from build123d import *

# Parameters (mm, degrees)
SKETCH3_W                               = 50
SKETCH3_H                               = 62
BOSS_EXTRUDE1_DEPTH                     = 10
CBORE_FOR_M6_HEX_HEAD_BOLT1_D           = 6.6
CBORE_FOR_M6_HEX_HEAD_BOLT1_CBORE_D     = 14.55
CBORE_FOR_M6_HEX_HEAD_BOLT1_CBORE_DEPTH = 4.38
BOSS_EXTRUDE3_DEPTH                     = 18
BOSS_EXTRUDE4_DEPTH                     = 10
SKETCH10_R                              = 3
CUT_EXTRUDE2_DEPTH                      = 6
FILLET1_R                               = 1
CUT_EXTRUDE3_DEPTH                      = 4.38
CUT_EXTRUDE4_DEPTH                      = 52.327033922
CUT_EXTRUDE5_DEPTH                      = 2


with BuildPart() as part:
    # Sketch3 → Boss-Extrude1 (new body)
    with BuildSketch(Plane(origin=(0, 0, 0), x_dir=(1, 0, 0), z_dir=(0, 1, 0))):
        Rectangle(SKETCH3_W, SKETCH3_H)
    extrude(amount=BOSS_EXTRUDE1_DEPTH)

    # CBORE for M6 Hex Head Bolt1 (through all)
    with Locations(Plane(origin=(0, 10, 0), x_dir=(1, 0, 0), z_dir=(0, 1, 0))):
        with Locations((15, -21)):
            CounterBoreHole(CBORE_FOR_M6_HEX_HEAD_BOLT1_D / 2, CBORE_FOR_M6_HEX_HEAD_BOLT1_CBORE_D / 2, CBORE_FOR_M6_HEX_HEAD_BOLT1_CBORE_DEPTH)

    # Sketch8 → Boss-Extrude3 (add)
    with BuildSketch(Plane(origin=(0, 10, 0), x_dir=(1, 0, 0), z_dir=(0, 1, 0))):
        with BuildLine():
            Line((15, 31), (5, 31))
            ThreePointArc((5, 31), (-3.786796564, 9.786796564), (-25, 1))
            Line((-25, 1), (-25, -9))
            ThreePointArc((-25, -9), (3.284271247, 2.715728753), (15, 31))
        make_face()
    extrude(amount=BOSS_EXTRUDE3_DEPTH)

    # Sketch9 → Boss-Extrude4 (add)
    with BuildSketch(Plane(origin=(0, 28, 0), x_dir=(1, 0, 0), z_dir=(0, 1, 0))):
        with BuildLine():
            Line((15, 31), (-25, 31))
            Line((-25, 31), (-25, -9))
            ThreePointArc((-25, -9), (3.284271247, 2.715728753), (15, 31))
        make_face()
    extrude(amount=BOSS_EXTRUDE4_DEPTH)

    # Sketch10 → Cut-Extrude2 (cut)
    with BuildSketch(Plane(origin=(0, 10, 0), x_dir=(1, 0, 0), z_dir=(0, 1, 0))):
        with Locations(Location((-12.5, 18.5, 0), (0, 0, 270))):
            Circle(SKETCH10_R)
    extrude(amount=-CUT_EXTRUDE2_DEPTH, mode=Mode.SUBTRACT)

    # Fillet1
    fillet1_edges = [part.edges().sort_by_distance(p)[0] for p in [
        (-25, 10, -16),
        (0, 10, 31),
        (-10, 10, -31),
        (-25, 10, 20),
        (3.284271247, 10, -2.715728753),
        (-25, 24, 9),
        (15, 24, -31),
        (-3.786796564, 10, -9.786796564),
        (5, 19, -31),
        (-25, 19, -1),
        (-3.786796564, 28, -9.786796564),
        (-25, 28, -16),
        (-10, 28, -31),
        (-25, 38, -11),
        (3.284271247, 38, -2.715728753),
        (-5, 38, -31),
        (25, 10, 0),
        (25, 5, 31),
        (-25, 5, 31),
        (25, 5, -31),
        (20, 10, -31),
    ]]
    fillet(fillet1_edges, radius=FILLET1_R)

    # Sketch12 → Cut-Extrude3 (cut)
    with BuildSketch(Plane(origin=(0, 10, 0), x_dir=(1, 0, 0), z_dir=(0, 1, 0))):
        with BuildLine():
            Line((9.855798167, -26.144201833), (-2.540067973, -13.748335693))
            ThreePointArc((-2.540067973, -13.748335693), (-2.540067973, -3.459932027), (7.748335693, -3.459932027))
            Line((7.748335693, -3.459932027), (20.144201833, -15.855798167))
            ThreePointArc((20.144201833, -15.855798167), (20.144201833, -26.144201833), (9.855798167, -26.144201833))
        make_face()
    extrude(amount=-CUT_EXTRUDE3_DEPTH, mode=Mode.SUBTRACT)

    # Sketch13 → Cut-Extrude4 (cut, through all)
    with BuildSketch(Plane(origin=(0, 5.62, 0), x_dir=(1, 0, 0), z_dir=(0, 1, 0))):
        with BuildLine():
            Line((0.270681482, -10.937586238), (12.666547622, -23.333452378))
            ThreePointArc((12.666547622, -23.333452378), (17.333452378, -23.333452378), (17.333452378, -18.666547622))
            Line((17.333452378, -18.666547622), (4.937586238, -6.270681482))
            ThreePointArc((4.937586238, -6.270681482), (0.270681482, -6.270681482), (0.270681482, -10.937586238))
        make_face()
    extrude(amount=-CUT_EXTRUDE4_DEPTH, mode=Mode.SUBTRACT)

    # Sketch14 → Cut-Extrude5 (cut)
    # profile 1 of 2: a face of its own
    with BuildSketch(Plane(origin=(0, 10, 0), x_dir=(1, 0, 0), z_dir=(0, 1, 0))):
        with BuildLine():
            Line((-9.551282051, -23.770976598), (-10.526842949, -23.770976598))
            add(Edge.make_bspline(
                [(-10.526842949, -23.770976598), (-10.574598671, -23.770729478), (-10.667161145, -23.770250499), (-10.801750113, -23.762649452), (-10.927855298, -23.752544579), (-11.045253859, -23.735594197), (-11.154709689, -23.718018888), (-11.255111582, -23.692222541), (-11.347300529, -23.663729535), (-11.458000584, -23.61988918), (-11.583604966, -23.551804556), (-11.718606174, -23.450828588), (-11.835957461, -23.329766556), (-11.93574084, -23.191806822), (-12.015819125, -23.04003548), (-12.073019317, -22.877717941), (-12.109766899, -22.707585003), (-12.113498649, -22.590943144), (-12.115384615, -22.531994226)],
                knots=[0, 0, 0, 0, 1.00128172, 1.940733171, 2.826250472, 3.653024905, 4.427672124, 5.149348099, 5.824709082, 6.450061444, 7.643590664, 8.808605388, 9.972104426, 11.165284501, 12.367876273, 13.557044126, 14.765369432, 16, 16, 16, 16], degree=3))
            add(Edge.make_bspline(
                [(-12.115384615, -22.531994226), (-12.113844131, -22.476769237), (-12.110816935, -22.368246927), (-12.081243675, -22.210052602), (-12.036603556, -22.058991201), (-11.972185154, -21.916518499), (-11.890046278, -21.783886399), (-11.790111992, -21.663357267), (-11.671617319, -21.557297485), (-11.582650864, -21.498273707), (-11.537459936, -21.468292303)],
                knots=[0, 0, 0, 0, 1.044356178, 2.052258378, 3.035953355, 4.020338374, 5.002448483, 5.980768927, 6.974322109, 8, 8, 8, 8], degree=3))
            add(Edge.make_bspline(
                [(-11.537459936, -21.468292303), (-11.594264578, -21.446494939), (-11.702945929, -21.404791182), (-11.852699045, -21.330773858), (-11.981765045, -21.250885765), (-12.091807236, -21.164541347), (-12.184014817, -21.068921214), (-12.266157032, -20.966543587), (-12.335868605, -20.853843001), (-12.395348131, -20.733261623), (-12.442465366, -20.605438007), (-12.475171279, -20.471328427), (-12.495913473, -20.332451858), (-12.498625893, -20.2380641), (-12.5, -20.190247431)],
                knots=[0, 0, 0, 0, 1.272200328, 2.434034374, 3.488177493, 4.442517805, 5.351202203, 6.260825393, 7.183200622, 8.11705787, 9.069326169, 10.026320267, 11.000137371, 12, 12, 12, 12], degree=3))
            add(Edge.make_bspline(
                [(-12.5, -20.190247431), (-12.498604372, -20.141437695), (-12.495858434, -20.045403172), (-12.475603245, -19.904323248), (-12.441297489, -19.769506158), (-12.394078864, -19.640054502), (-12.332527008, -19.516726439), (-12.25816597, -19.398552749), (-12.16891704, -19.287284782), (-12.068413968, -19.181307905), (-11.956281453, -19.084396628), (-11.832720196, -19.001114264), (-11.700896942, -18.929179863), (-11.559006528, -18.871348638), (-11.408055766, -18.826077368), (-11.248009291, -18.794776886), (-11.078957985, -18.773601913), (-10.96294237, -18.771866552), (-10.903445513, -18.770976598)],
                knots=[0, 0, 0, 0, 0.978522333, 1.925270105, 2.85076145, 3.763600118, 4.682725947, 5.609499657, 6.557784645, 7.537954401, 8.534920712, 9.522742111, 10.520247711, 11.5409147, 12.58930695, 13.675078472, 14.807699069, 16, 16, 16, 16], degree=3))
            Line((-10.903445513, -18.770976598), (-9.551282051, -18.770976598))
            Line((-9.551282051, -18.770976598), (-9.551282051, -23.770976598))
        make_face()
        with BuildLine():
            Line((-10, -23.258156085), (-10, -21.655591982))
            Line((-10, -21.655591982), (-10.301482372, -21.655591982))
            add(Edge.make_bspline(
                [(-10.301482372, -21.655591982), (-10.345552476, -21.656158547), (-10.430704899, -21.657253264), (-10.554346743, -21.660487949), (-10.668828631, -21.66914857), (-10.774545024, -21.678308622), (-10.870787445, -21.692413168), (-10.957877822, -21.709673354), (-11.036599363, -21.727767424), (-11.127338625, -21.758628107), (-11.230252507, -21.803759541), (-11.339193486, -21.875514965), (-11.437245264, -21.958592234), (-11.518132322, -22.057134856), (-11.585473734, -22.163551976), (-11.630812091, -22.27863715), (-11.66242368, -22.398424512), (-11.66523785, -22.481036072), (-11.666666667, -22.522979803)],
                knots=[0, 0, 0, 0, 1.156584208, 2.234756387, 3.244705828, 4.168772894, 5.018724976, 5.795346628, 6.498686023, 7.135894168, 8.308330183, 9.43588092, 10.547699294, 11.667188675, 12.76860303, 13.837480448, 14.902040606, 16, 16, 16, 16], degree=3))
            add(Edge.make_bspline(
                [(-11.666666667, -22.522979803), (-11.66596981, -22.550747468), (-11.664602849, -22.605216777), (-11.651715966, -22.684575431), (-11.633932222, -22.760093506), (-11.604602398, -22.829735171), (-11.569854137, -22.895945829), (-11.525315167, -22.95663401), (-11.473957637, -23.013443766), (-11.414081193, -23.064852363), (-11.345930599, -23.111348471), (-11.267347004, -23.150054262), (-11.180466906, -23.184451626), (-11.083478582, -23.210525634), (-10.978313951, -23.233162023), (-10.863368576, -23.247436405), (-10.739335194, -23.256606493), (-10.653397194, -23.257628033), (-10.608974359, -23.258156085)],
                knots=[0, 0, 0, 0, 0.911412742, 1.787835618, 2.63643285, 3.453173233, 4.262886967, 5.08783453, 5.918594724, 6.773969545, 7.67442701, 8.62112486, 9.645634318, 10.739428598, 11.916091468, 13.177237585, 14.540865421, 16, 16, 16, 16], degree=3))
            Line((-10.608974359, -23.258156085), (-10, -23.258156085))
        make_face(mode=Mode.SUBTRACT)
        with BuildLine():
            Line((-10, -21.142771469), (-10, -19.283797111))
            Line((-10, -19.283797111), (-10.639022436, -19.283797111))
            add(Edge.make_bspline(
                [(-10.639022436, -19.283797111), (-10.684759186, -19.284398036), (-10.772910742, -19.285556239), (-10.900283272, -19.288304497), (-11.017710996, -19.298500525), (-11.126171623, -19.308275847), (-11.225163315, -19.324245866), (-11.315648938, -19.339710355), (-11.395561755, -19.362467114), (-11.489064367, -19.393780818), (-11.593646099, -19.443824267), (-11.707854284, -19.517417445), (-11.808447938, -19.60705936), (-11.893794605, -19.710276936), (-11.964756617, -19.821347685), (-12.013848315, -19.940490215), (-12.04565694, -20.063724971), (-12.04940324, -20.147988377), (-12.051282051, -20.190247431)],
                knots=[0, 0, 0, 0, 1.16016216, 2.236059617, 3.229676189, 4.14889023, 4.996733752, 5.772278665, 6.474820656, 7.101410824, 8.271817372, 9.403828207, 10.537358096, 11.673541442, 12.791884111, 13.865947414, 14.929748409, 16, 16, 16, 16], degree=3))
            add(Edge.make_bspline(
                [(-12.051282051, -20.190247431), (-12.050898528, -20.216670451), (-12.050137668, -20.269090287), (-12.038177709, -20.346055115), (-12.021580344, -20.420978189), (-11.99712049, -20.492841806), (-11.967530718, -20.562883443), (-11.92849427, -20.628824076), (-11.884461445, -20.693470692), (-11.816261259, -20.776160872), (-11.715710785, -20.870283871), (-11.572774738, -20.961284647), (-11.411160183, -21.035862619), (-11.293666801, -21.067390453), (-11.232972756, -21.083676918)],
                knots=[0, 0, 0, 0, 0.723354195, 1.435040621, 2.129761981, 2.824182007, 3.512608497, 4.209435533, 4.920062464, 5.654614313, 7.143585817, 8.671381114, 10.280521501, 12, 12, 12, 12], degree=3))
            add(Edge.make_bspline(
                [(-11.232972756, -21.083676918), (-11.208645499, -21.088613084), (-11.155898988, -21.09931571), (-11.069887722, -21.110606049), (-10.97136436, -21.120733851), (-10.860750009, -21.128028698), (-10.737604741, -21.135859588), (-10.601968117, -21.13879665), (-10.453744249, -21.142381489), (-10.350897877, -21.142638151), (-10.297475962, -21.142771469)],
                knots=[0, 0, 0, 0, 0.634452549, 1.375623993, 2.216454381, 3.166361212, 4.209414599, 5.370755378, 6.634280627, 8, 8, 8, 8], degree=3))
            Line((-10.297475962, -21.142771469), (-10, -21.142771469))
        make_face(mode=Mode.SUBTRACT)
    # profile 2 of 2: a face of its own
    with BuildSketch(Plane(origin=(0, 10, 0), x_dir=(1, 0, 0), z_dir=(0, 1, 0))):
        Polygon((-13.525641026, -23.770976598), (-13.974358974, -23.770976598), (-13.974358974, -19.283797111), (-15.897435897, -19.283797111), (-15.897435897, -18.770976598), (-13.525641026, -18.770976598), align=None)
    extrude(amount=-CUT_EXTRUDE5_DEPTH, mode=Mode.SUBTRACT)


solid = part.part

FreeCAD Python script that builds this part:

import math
import FreeCAD as App
import Part
import Sketcher
Q = App.Units.Quantity


def edges_at(feature, points):
    """Names of the edges that pass closest to the given points."""
    edges = feature.Shape.Edges
    near = lambda p: min(range(len(edges)), key=lambda i: edges[i].distToShape(Part.Vertex(*p))[0])
    return sorted({f"Edge{near(p) + 1}" for p in points})

doc = App.newDocument("Part")
body = doc.addObject("PartDesign::Body", "Body")

# Sketch on XZ plane
sketch1 = doc.addObject("Sketcher::SketchObject", "Sketch")
body.addObject(sketch1)
sketch1.AttachmentSupport = (doc.XZ_Plane, [""])
sketch1.MapMode = "FlatFace"
sketch1.addGeometry([
    Part.LineSegment(App.Vector(-25, -31, 0), App.Vector(-25, 31, 0)),
    Part.LineSegment(App.Vector(-25, 31, 0), App.Vector(25, 31, 0)),
    Part.LineSegment(App.Vector(25, 31, 0), App.Vector(25, -31, 0)),
    Part.LineSegment(App.Vector(25, -31, 0), App.Vector(-25, -31, 0)),
], False)
sketch1.addConstraint([
    Sketcher.Constraint("Coincident", 0, 2, 1, 1),
    Sketcher.Constraint("Coincident", 1, 2, 2, 1),
    Sketcher.Constraint("Coincident", 2, 2, 3, 1),
    Sketcher.Constraint("Coincident", 3, 2, 0, 1),
    Sketcher.Constraint("Vertical", 0),
    Sketcher.Constraint("Horizontal", 1),
    Sketcher.Constraint("Vertical", 2),
    Sketcher.Constraint("Horizontal", 3),
    Sketcher.Constraint("Symmetric", 0, 2, 2, 2, -1, 1),
    Sketcher.Constraint("DistanceX", 1, 1, 1, 2, 50.0),
    Sketcher.Constraint("DistanceY", 0, 1, 0, 2, 62.0),
])
pad1 = doc.addObject("PartDesign::Pad", "Pad")
body.addObject(pad1)
pad1.Profile = sketch1
pad1.Length = 10
pad1.Reversed = True

# Sketch on XZ plane
sketch2 = doc.addObject("Sketcher::SketchObject", "Sketch001")
body.addObject(sketch2)
sketch2.AttachmentSupport = (doc.XZ_Plane, [""])
sketch2.MapMode = "FlatFace"
sketch2.AttachmentOffset = App.Placement(App.Vector(0, 0, -10), App.Rotation())
sketch2.addGeometry(Part.Circle(App.Vector(15, 21, 0), App.Vector(0, 0, 1), 3.3), False)
sketch2.addConstraint([
    Sketcher.Constraint("Diameter", 0, 6.6),
    Sketcher.Constraint("DistanceX", -1, 1, 0, 3, 15.0),
    Sketcher.Constraint("DistanceY", -1, 1, 0, 3, 21.0),
])
doc.recompute()
hole = doc.addObject("PartDesign::Hole", "Hole")
body.addObject(hole)
hole.Profile = sketch2
hole.ThreadType = "None"
hole.Diameter = 6.6
hole.DepthType = "ThroughAll"
hole.HoleCutType = "Counterbore"
hole.HoleCutDiameter = 14.55
hole.HoleCutDepth = 4.38
hole.Reversed = True

# Sketch on XZ plane
sketch3 = doc.addObject("Sketcher::SketchObject", "Sketch002")
body.addObject(sketch3)
sketch3.AttachmentSupport = (doc.XZ_Plane, [""])
sketch3.MapMode = "FlatFace"
sketch3.AttachmentOffset = App.Placement(App.Vector(0, 0, -10), App.Rotation())
sketch3.addGeometry([
    Part.LineSegment(App.Vector(15, -31, 0), App.Vector(5, -31, 0)),
    Part.ArcOfCircle(Part.Circle(App.Vector(-25, -31, 0), App.Vector(0, 0, 1), 30), math.radians(0), math.radians(90)),
    Part.LineSegment(App.Vector(-25, -1, 0), App.Vector(-25, 9, 0)),
    Part.ArcOfCircle(Part.Circle(App.Vector(-25, -31, 0), App.Vector(0, 0, 1), 40), math.radians(0), math.radians(90)),
], False)
sketch3.addConstraint([
    Sketcher.Constraint("Coincident", 0, 2, 1, 1),
    Sketcher.Constraint("Coincident", 1, 2, 2, 1),
    Sketcher.Constraint("Coincident", 2, 2, 3, 2),
    Sketcher.Constraint("Coincident", 3, 1, 0, 1),
    Sketcher.Constraint("Horizontal", 0),
    Sketcher.Constraint("Vertical", 2),
    Sketcher.Constraint("Coincident", 3, 3, 1, 3),
    Sketcher.Constraint("Horizontal", 3, 3, 0, 2),
    Sketcher.Constraint("Vertical", 3, 3, 1, 2),
    Sketcher.Constraint("Radius", 1, 30.0),
    Sketcher.Constraint("Radius", 3, 40.0),
    Sketcher.Constraint("DistanceX", 1, 3, -1, 1, 25.0),
    Sketcher.Constraint("DistanceY", 1, 3, -1, 1, 31.0),
])
pad2 = doc.addObject("PartDesign::Pad", "Pad001")
body.addObject(pad2)
pad2.Profile = sketch3
pad2.Length = 18
pad2.Reversed = True

# Sketch on XZ plane
sketch4 = doc.addObject("Sketcher::SketchObject", "Sketch003")
body.addObject(sketch4)
sketch4.AttachmentSupport = (doc.XZ_Plane, [""])
sketch4.MapMode = "FlatFace"
sketch4.AttachmentOffset = App.Placement(App.Vector(0, 0, -28), App.Rotation())
sketch4.addGeometry([
    Part.LineSegment(App.Vector(15, -31, 0), App.Vector(-25, -31, 0)),
    Part.LineSegment(App.Vector(-25, -31, 0), App.Vector(-25, 9, 0)),
    Part.ArcOfCircle(Part.Circle(App.Vector(-25, -31, 0), App.Vector(0, 0, 1), 40), math.radians(0), math.radians(90)),
], False)
sketch4.addConstraint([
    Sketcher.Constraint("Coincident", 0, 2, 1, 1),
    Sketcher.Constraint("Coincident", 1, 2, 2, 2),
    Sketcher.Constraint("Coincident", 2, 1, 0, 1),
    Sketcher.Constraint("Horizontal", 0),
    Sketcher.Constraint("Vertical", 1),
    Sketcher.Constraint("Coincident", 0, 2, 2, 3),
    Sketcher.Constraint("Radius", 2, 40.0),
    Sketcher.Constraint("DistanceX", 2, 3, -1, 1, 25.0),
    Sketcher.Constraint("DistanceY", 2, 3, -1, 1, 31.0),
])
pad3 = doc.addObject("PartDesign::Pad", "Pad002")
body.addObject(pad3)
pad3.Profile = sketch4
pad3.Length = 10
pad3.Reversed = True

# Sketch on XZ plane
sketch5 = doc.addObject("Sketcher::SketchObject", "Sketch004")
body.addObject(sketch5)
sketch5.AttachmentSupport = (doc.XZ_Plane, [""])
sketch5.MapMode = "FlatFace"
sketch5.AttachmentOffset = App.Placement(App.Vector(0, 0, -10), App.Rotation())
sketch5.addGeometry(Part.Circle(App.Vector(-12.5, -18.5, 0), App.Vector(0, 0, 1), 3), False)
sketch5.addConstraint([
    Sketcher.Constraint("Diameter", 0, 6.0),
    Sketcher.Constraint("DistanceX", 0, 3, -1, 1, 12.5),
    Sketcher.Constraint("DistanceY", 0, 3, -1, 1, 18.5),
])
pocket1 = doc.addObject("PartDesign::Pocket", "Pocket")
body.addObject(pocket1)
pocket1.Profile = sketch5
pocket1.Length = 6
pocket1.Reversed = True
doc.recompute()

fillet = doc.addObject("PartDesign::Fillet", "Fillet")
body.addObject(fillet)
fillet.Base = (pocket1, edges_at(pocket1, [
    (-25, 10, -16),
    (0, 10, 31),
    (-10, 10, -31),
    (-25, 10, 20),
    (3.284, 10, -2.716),
    (-25, 24, 9),
    (15, 24, -31),
    (-3.787, 10, -9.787),
    (5, 19, -31),
    (-25, 19, -1),
    (-3.787, 28, -9.787),
    (-25, 28, -16),
    (-10, 28, -31),
    (-25, 38, -11),
    (3.284, 38, -2.716),
    (-5, 38, -31),
    (25, 10, 0),
    (25, 5, 31),
    (-25, 5, 31),
    (25, 5, -31),
    (20, 10, -31),
]))
fillet.Radius = 1

# Sketch on XZ plane
sketch6 = doc.addObject("Sketcher::SketchObject", "Sketch005")
body.addObject(sketch6)
sketch6.AttachmentSupport = (doc.XZ_Plane, [""])
sketch6.MapMode = "FlatFace"
sketch6.AttachmentOffset = App.Placement(App.Vector(0, 0, -10), App.Rotation())
sketch6.addGeometry([
    Part.LineSegment(App.Vector(-3, 14, 0), App.Vector(10, 26, 0)),
    Part.ArcOfCircle(Part.Circle(App.Vector(15, 21, 0), App.Vector(0, 0, 1), 7), math.radians(-45), math.radians(135)),
    Part.LineSegment(App.Vector(20, 16, 0), App.Vector(8, 3, 0)),
    Part.ArcOfCircle(Part.Circle(App.Vector(3, 9, 0), App.Vector(0, 0, 1), 7), math.radians(135), math.radians(315)),
], False)
sketch6.addConstraint([
    Sketcher.Constraint("Tangent", 0, 2, 1, 2),
    Sketcher.Constraint("Tangent", 1, 1, 2, 1),
    Sketcher.Constraint("Tangent", 2, 2, 3, 2),
    Sketcher.Constraint("Tangent", 3, 1, 0, 1),
    Sketcher.Constraint("Equal", 1, 3),
    Sketcher.Constraint("Angle", 0, Q("45 deg")),
    Sketcher.Constraint("DistanceX", -1, 1, 1, 3, 15.0),
    Sketcher.Constraint("DistanceY", -1, 1, 1, 3, 21.0),
    Sketcher.Constraint("Radius", 1, 7.275),
    Sketcher.Constraint("DistanceY", 2, 2, 0, 2, 22.68427),
])
pocket2 = doc.addObject("PartDesign::Pocket", "Pocket001")
body.addObject(pocket2)
pocket2.Profile = sketch6
pocket2.Length = 4.38
pocket2.Reversed = True

# Sketch on XZ plane
sketch7 = doc.addObject("Sketcher::SketchObject", "Sketch006")
body.addObject(sketch7)
sketch7.AttachmentSupport = (doc.XZ_Plane, [""])
sketch7.MapMode = "FlatFace"
sketch7.AttachmentOffset = App.Placement(App.Vector(0, 0, -5.62), App.Rotation())
sketch7.addGeometry([
    Part.LineSegment(App.Vector(0.3, 10.9, 0), App.Vector(12.7, 23.3, 0)),
    Part.ArcOfCircle(Part.Circle(App.Vector(15, 21, 0), App.Vector(0, 0, 1), 3.3), math.radians(-45), math.radians(135)),
    Part.LineSegment(App.Vector(17.3, 18.7, 0), App.Vector(4.9, 6.3, 0)),
    Part.ArcOfCircle(Part.Circle(App.Vector(2.6, 8.6, 0), App.Vector(0, 0, 1), 3.3), math.radians(135), math.radians(315)),
], False)
sketch7.addConstraint([
    Sketcher.Constraint("Tangent", 0, 2, 1, 2),
    Sketcher.Constraint("Tangent", 1, 1, 2, 1),
    Sketcher.Constraint("Tangent", 2, 2, 3, 2),
    Sketcher.Constraint("Tangent", 3, 1, 0, 1),
    Sketcher.Constraint("Equal", 1, 3),
    Sketcher.Constraint("Radius", 1, 3.3),
    Sketcher.Constraint("Angle", 0, Q("45 deg")),
    Sketcher.Constraint("DistanceX", -1, 1, 1, 3, 15.0),
    Sketcher.Constraint("DistanceY", -1, 1, 1, 3, 21.0),
    Sketcher.Constraint("DistanceY", -1, 1, 2, 2, 6.270681),
])
pocket3 = doc.addObject("PartDesign::Pocket", "Pocket002")
body.addObject(pocket3)
pocket3.Profile = sketch7
pocket3.Type = "ThroughAll"
pocket3.Reversed = True

# Sketch on XZ plane
sketch8 = doc.addObject("Sketcher::SketchObject", "Sketch007")
body.addObject(sketch8)
sketch8.AttachmentSupport = (doc.XZ_Plane, [""])
sketch8.MapMode = "FlatFace"
sketch8.AttachmentOffset = App.Placement(App.Vector(0, 0, -10), App.Rotation())
sketch8.addGeometry([
    Part.LineSegment(App.Vector(-10.526843, 23.770977, 0), App.Vector(-9.551282, 23.770977, 0)),  # 0
    Part.LineSegment(App.Vector(-9.551282, 23.770977, 0), App.Vector(-9.551282, 18.770977, 0)),  # 1
    Part.LineSegment(App.Vector(-9.551282, 18.770977, 0), App.Vector(-10.903446, 18.770977, 0)),  # 2
    Part.BSplineCurve([App.Vector(-12.5, 20.190247, 0), App.Vector(-12.498604, 20.141438, 0), App.Vector(-12.495858, 20.045403, 0), App.Vector(-12.475603, 19.904323, 0), App.Vector(-12.441297, 19.769506, 0), App.Vector(-12.394079, 19.640055, 0), App.Vector(-12.332527, 19.516726, 0), App.Vector(-12.258166, 19.398553, 0), App.Vector(-12.168917, 19.287285, 0), App.Vector(-12.068414, 19.181308, 0), App.Vector(-11.956281, 19.084397, 0), App.Vector(-11.83272, 19.001114, 0), App.Vector(-11.700897, 18.92918, 0), App.Vector(-11.559007, 18.871349, 0), App.Vector(-11.408056, 18.826077, 0), App.Vector(-11.248009, 18.794777, 0), App.Vector(-11.078958, 18.773602, 0), App.Vector(-10.962942, 18.771867, 0), App.Vector(-10.903446, 18.770977, 0)], [4, 1, 1, 1, 1, 1, 1, 1, 1, 1, 1, 1, 1, 1, 1, 1, 4], [0, 0.978522333, 1.925270105, 2.85076145, 3.763600118, 4.682725947, 5.609499657, 6.557784645, 7.537954401, 8.534920712, 9.522742111, 10.520247711, 11.5409147, 12.58930695, 13.675078472, 14.807699069, 16], False, 3, [1, 1, 1, 1, 1, 1, 1, 1, 1, 1, 1, 1, 1, 1, 1, 1, 1, 1, 1], False),  # 3
    Part.BSplineCurve([App.Vector(-11.53746, 21.468292, 0), App.Vector(-11.594265, 21.446495, 0), App.Vector(-11.702946, 21.404791, 0), App.Vector(-11.852699, 21.330774, 0), App.Vector(-11.981765, 21.250886, 0), App.Vector(-12.091807, 21.164541, 0), App.Vector(-12.184015, 21.068921, 0), App.Vector(-12.266157, 20.966544, 0), App.Vector(-12.335869, 20.853843, 0), App.Vector(-12.395348, 20.733262, 0), App.Vector(-12.442465, 20.605438, 0), App.Vector(-12.475171, 20.471328, 0), App.Vector(-12.495913, 20.332452, 0), App.Vector(-12.498626, 20.238064, 0), App.Vector(-12.5, 20.190247, 0)], [4, 1, 1, 1, 1, 1, 1, 1, 1, 1, 1, 1, 4], [0, 1.272200328, 2.434034374, 3.488177493, 4.442517805, 5.351202203, 6.260825393, 7.183200622, 8.11705787, 9.069326169, 10.026320267, 11.000137371, 12], False, 3, [1, 1, 1, 1, 1, 1, 1, 1, 1, 1, 1, 1, 1, 1, 1], False),  # 4
    Part.BSplineCurve([App.Vector(-12.115385, 22.531994, 0), App.Vector(-12.113844, 22.476769, 0), App.Vector(-12.110817, 22.368247, 0), App.Vector(-12.081244, 22.210053, 0), App.Vector(-12.036604, 22.058991, 0), App.Vector(-11.972185, 21.916518, 0), App.Vector(-11.890046, 21.783886, 0), App.Vector(-11.790112, 21.663357, 0), App.Vector(-11.671617, 21.557297, 0), App.Vector(-11.582651, 21.498274, 0), App.Vector(-11.53746, 21.468292, 0)], [4, 1, 1, 1, 1, 1, 1, 1, 4], [0, 1.044356178, 2.052258378, 3.035953355, 4.020338374, 5.002448483, 5.980768927, 6.974322109, 8], False, 3, [1, 1, 1, 1, 1, 1, 1, 1, 1, 1, 1], False),  # 5
    Part.BSplineCurve([App.Vector(-10.526843, 23.770977, 0), App.Vector(-10.574599, 23.770729, 0), App.Vector(-10.667161, 23.77025, 0), App.Vector(-10.80175, 23.762649, 0), App.Vector(-10.927855, 23.752545, 0), App.Vector(-11.045254, 23.735594, 0), App.Vector(-11.15471, 23.718019, 0), App.Vector(-11.255112, 23.692223, 0), App.Vector(-11.347301, 23.66373, 0), App.Vector(-11.458001, 23.619889, 0), App.Vector(-11.583605, 23.551805, 0), App.Vector(-11.718606, 23.450829, 0), App.Vector(-11.835957, 23.329767, 0), App.Vector(-11.935741, 23.191807, 0), App.Vector(-12.015819, 23.040035, 0), App.Vector(-12.073019, 22.877718, 0), App.Vector(-12.109767, 22.707585, 0), App.Vector(-12.113499, 22.590943, 0), App.Vector(-12.115385, 22.531994, 0)], [4, 1, 1, 1, 1, 1, 1, 1, 1, 1, 1, 1, 1, 1, 1, 1, 4], [0, 1.00128172, 1.940733171, 2.826250472, 3.653024905, 4.427672124, 5.149348099, 5.824709082, 6.450061444, 7.643590664, 8.808605388, 9.972104426, 11.165284501, 12.367876273, 13.557044126, 14.765369432, 16], False, 3, [1, 1, 1, 1, 1, 1, 1, 1, 1, 1, 1, 1, 1, 1, 1, 1, 1, 1, 1], False),  # 6
    Part.LineSegment(App.Vector(-10, 23.258156, 0), App.Vector(-10.608974, 23.258156, 0)),  # 7
    Part.BSplineCurve([App.Vector(-11.666667, 22.52298, 0), App.Vector(-11.66597, 22.550747, 0), App.Vector(-11.664603, 22.605217, 0), App.Vector(-11.651716, 22.684575, 0), App.Vector(-11.633932, 22.760094, 0), App.Vector(-11.604602, 22.829735, 0), App.Vector(-11.569854, 22.895946, 0), App.Vector(-11.525315, 22.956634, 0), App.Vector(-11.473958, 23.013444, 0), App.Vector(-11.414081, 23.064852, 0), App.Vector(-11.345931, 23.111348, 0), App.Vector(-11.267347, 23.150054, 0), App.Vector(-11.180467, 23.184452, 0), App.Vector(-11.083479, 23.210526, 0), App.Vector(-10.978314, 23.233162, 0), App.Vector(-10.863369, 23.247436, 0), App.Vector(-10.739335, 23.256606, 0), App.Vector(-10.653397, 23.257628, 0), App.Vector(-10.608974, 23.258156, 0)], [4, 1, 1, 1, 1, 1, 1, 1, 1, 1, 1, 1, 1, 1, 1, 1, 4], [0, 0.911412742, 1.787835618, 2.63643285, 3.453173233, 4.262886967, 5.08783453, 5.918594724, 6.773969545, 7.67442701, 8.62112486, 9.645634318, 10.739428598, 11.916091468, 13.177237585, 14.540865421, 16], False, 3, [1, 1, 1, 1, 1, 1, 1, 1, 1, 1, 1, 1, 1, 1, 1, 1, 1, 1, 1], False),  # 8
    Part.BSplineCurve([App.Vector(-10.301482, 21.655592, 0), App.Vector(-10.345552, 21.656159, 0), App.Vector(-10.430705, 21.657253, 0), App.Vector(-10.554347, 21.660488, 0), App.Vector(-10.668829, 21.669149, 0), App.Vector(-10.774545, 21.678309, 0), App.Vector(-10.870787, 21.692413, 0), App.Vector(-10.957878, 21.709673, 0), App.Vector(-11.036599, 21.727767, 0), App.Vector(-11.127339, 21.758628, 0), App.Vector(-11.230253, 21.80376, 0), App.Vector(-11.339193, 21.875515, 0), App.Vector(-11.437245, 21.958592, 0), App.Vector(-11.518132, 22.057135, 0), App.Vector(-11.585474, 22.163552, 0), App.Vector(-11.630812, 22.278637, 0), App.Vector(-11.662424, 22.398425, 0), App.Vector(-11.665238, 22.481036, 0), App.Vector(-11.666667, 22.52298, 0)], [4, 1, 1, 1, 1, 1, 1, 1, 1, 1, 1, 1, 1, 1, 1, 1, 4], [0, 1.156584208, 2.234756387, 3.244705828, 4.168772894, 5.018724976, 5.795346628, 6.498686023, 7.135894168, 8.308330183, 9.43588092, 10.547699294, 11.667188675, 12.76860303, 13.837480448, 14.902040606, 16], False, 3, [1, 1, 1, 1, 1, 1, 1, 1, 1, 1, 1, 1, 1, 1, 1, 1, 1, 1, 1], False),  # 9
    Part.LineSegment(App.Vector(-10.301482, 21.655592, 0), App.Vector(-10, 21.655592, 0)),  # 10
    Part.LineSegment(App.Vector(-10, 21.655592, 0), App.Vector(-10, 23.258156, 0)),  # 11
    Part.LineSegment(App.Vector(-10, 21.142771, 0), App.Vector(-10.297476, 21.142771, 0)),  # 12
    Part.BSplineCurve([App.Vector(-11.232973, 21.083677, 0), App.Vector(-11.208645, 21.088613, 0), App.Vector(-11.155899, 21.099316, 0), App.Vector(-11.069888, 21.110606, 0), App.Vector(-10.971364, 21.120734, 0), App.Vector(-10.86075, 21.128029, 0), App.Vector(-10.737605, 21.13586, 0), App.Vector(-10.601968, 21.138797, 0), App.Vector(-10.453744, 21.142381, 0), App.Vector(-10.350898, 21.142638, 0), App.Vector(-10.297476, 21.142771, 0)], [4, 1, 1, 1, 1, 1, 1, 1, 4], [0, 0.634452549, 1.375623993, 2.216454381, 3.166361212, 4.209414599, 5.370755378, 6.634280627, 8], False, 3, [1, 1, 1, 1, 1, 1, 1, 1, 1, 1, 1], False),  # 13
    Part.BSplineCurve([App.Vector(-12.051282, 20.190247, 0), App.Vector(-12.050899, 20.21667, 0), App.Vector(-12.050138, 20.26909, 0), App.Vector(-12.038178, 20.346055, 0), App.Vector(-12.02158, 20.420978, 0), App.Vector(-11.99712, 20.492842, 0), App.Vector(-11.967531, 20.562883, 0), App.Vector(-11.928494, 20.628824, 0), App.Vector(-11.884461, 20.693471, 0), App.Vector(-11.816261, 20.776161, 0), App.Vector(-11.715711, 20.870284, 0), App.Vector(-11.572775, 20.961285, 0), App.Vector(-11.41116, 21.035863, 0), App.Vector(-11.293667, 21.06739, 0), App.Vector(-11.232973, 21.083677, 0)], [4, 1, 1, 1, 1, 1, 1, 1, 1, 1, 1, 1, 4], [0, 0.723354195, 1.435040621, 2.129761981, 2.824182007, 3.512608497, 4.209435533, 4.920062464, 5.654614313, 7.143585817, 8.671381114, 10.280521501, 12], False, 3, [1, 1, 1, 1, 1, 1, 1, 1, 1, 1, 1, 1, 1, 1, 1], False),  # 14
    Part.BSplineCurve([App.Vector(-10.639022, 19.283797, 0), App.Vector(-10.684759, 19.284398, 0), App.Vector(-10.772911, 19.285556, 0), App.Vector(-10.900283, 19.288304, 0), App.Vector(-11.017711, 19.298501, 0), App.Vector(-11.126172, 19.308276, 0), App.Vector(-11.225163, 19.324246, 0), App.Vector(-11.315649, 19.33971, 0), App.Vector(-11.395562, 19.362467, 0), App.Vector(-11.489064, 19.393781, 0), App.Vector(-11.593646, 19.443824, 0), App.Vector(-11.707854, 19.517417, 0), App.Vector(-11.808448, 19.607059, 0), App.Vector(-11.893795, 19.710277, 0), App.Vector(-11.964757, 19.821348, 0), App.Vector(-12.013848, 19.94049, 0), App.Vector(-12.045657, 20.063725, 0), App.Vector(-12.049403, 20.147988, 0), App.Vector(-12.051282, 20.190247, 0)], [4, 1, 1, 1, 1, 1, 1, 1, 1, 1, 1, 1, 1, 1, 1, 1, 4], [0, 1.16016216, 2.236059617, 3.229676189, 4.14889023, 4.996733752, 5.772278665, 6.474820656, 7.101410824, 8.271817372, 9.403828207, 10.537358096, 11.673541442, 12.791884111, 13.865947414, 14.929748409, 16], False, 3, [1, 1, 1, 1, 1, 1, 1, 1, 1, 1, 1, 1, 1, 1, 1, 1, 1, 1, 1], False),  # 15
    Part.LineSegment(App.Vector(-10.639022, 19.283797, 0), App.Vector(-10, 19.283797, 0)),  # 16
    Part.LineSegment(App.Vector(-10, 19.283797, 0), App.Vector(-10, 21.142771, 0)),  # 17
    Part.LineSegment(App.Vector(-13.974359, 23.770977, 0), App.Vector(-13.525641, 23.770977, 0)),  # 18
    Part.LineSegment(App.Vector(-13.525641, 23.770977, 0), App.Vector(-13.525641, 18.770977, 0)),  # 19
    Part.LineSegment(App.Vector(-13.525641, 18.770977, 0), App.Vector(-15.897436, 18.770977, 0)),  # 20
    Part.LineSegment(App.Vector(-15.897436, 18.770977, 0), App.Vector(-15.897436, 19.283797, 0)),  # 21
    Part.LineSegment(App.Vector(-15.897436, 19.283797, 0), App.Vector(-13.974359, 19.283797, 0)),  # 22
    Part.LineSegment(App.Vector(-13.974359, 19.283797, 0), App.Vector(-13.974359, 23.770977, 0)),  # 23
], False)
sketch8.addConstraint([
    Sketcher.Constraint("Block", 3),
    Sketcher.Constraint("Block", 4),
    Sketcher.Constraint("Block", 5),
    Sketcher.Constraint("Block", 6),
    Sketcher.Constraint("Block", 8),
    Sketcher.Constraint("Block", 9),
    Sketcher.Constraint("Block", 13),
    Sketcher.Constraint("Block", 14),
    Sketcher.Constraint("Block", 15),
    Sketcher.Constraint("Coincident", 0, 2, 1, 1),
    Sketcher.Constraint("Coincident", 1, 2, 2, 1),
    Sketcher.Constraint("Coincident", 2, 2, 3, 2),
    Sketcher.Constraint("Coincident", 6, 1, 0, 1),
    Sketcher.Constraint("Coincident", 7, 2, 8, 2),
    Sketcher.Constraint("Coincident", 9, 1, 10, 1),
    Sketcher.Constraint("Coincident", 10, 2, 11, 1),
    Sketcher.Constraint("Coincident", 11, 2, 7, 1),
    Sketcher.Constraint("Coincident", 12, 2, 13, 2),
    Sketcher.Constraint("Coincident", 15, 1, 16, 1),
    Sketcher.Constraint("Coincident", 16, 2, 17, 1),
    Sketcher.Constraint("Coincident", 17, 2, 12, 1),
    Sketcher.Constraint("Coincident", 18, 2, 19, 1),
    Sketcher.Constraint("Coincident", 19, 2, 20, 1),
    Sketcher.Constraint("Coincident", 20, 2, 21, 1),
    Sketcher.Constraint("Coincident", 21, 2, 22, 1),
    Sketcher.Constraint("Coincident", 22, 2, 23, 1),
    Sketcher.Constraint("Coincident", 23, 2, 18, 1),
    Sketcher.Constraint("Horizontal", 0),
    Sketcher.Constraint("Vertical", 1),
    Sketcher.Constraint("Horizontal", 2),
    Sketcher.Constraint("Horizontal", 7),
    Sketcher.Constraint("Horizontal", 10),
    Sketcher.Constraint("Vertical", 11),
    Sketcher.Constraint("Horizontal", 12),
    Sketcher.Constraint("Horizontal", 16),
    Sketcher.Constraint("Vertical", 17),
    Sketcher.Constraint("Horizontal", 18),
    Sketcher.Constraint("Vertical", 19),
    Sketcher.Constraint("Horizontal", 20),
    Sketcher.Constraint("Vertical", 21),
    Sketcher.Constraint("Horizontal", 22),
    Sketcher.Constraint("Vertical", 23),
    Sketcher.Constraint("Horizontal", 0, 2, 18, 2),
    Sketcher.Constraint("Horizontal", 2, 2, 19, 2),
    Sketcher.Constraint("Horizontal", 16, 2, 21, 2),
    Sketcher.Constraint("Vertical", 11, 2, 16, 2),
    Sketcher.Constraint("DistanceX", 10, 2, -1, 1, 10.0),
    Sketcher.Constraint("DistanceX", 0, 1, 0, 2, 0.975561),
    Sketcher.Constraint("DistanceX", 18, 1, 18, 2, 0.448718),
    Sketcher.Constraint("DistanceX", 20, 2, 20, 1, 2.371795),
    Sketcher.Constraint("DistanceX", 18, 2, -1, 1, 13.525641),
])
pocket4 = doc.addObject("PartDesign::Pocket", "Pocket003")
body.addObject(pocket4)
pocket4.Profile = sketch8
pocket4.Length = 2
pocket4.Reversed = True

doc.recompute()
